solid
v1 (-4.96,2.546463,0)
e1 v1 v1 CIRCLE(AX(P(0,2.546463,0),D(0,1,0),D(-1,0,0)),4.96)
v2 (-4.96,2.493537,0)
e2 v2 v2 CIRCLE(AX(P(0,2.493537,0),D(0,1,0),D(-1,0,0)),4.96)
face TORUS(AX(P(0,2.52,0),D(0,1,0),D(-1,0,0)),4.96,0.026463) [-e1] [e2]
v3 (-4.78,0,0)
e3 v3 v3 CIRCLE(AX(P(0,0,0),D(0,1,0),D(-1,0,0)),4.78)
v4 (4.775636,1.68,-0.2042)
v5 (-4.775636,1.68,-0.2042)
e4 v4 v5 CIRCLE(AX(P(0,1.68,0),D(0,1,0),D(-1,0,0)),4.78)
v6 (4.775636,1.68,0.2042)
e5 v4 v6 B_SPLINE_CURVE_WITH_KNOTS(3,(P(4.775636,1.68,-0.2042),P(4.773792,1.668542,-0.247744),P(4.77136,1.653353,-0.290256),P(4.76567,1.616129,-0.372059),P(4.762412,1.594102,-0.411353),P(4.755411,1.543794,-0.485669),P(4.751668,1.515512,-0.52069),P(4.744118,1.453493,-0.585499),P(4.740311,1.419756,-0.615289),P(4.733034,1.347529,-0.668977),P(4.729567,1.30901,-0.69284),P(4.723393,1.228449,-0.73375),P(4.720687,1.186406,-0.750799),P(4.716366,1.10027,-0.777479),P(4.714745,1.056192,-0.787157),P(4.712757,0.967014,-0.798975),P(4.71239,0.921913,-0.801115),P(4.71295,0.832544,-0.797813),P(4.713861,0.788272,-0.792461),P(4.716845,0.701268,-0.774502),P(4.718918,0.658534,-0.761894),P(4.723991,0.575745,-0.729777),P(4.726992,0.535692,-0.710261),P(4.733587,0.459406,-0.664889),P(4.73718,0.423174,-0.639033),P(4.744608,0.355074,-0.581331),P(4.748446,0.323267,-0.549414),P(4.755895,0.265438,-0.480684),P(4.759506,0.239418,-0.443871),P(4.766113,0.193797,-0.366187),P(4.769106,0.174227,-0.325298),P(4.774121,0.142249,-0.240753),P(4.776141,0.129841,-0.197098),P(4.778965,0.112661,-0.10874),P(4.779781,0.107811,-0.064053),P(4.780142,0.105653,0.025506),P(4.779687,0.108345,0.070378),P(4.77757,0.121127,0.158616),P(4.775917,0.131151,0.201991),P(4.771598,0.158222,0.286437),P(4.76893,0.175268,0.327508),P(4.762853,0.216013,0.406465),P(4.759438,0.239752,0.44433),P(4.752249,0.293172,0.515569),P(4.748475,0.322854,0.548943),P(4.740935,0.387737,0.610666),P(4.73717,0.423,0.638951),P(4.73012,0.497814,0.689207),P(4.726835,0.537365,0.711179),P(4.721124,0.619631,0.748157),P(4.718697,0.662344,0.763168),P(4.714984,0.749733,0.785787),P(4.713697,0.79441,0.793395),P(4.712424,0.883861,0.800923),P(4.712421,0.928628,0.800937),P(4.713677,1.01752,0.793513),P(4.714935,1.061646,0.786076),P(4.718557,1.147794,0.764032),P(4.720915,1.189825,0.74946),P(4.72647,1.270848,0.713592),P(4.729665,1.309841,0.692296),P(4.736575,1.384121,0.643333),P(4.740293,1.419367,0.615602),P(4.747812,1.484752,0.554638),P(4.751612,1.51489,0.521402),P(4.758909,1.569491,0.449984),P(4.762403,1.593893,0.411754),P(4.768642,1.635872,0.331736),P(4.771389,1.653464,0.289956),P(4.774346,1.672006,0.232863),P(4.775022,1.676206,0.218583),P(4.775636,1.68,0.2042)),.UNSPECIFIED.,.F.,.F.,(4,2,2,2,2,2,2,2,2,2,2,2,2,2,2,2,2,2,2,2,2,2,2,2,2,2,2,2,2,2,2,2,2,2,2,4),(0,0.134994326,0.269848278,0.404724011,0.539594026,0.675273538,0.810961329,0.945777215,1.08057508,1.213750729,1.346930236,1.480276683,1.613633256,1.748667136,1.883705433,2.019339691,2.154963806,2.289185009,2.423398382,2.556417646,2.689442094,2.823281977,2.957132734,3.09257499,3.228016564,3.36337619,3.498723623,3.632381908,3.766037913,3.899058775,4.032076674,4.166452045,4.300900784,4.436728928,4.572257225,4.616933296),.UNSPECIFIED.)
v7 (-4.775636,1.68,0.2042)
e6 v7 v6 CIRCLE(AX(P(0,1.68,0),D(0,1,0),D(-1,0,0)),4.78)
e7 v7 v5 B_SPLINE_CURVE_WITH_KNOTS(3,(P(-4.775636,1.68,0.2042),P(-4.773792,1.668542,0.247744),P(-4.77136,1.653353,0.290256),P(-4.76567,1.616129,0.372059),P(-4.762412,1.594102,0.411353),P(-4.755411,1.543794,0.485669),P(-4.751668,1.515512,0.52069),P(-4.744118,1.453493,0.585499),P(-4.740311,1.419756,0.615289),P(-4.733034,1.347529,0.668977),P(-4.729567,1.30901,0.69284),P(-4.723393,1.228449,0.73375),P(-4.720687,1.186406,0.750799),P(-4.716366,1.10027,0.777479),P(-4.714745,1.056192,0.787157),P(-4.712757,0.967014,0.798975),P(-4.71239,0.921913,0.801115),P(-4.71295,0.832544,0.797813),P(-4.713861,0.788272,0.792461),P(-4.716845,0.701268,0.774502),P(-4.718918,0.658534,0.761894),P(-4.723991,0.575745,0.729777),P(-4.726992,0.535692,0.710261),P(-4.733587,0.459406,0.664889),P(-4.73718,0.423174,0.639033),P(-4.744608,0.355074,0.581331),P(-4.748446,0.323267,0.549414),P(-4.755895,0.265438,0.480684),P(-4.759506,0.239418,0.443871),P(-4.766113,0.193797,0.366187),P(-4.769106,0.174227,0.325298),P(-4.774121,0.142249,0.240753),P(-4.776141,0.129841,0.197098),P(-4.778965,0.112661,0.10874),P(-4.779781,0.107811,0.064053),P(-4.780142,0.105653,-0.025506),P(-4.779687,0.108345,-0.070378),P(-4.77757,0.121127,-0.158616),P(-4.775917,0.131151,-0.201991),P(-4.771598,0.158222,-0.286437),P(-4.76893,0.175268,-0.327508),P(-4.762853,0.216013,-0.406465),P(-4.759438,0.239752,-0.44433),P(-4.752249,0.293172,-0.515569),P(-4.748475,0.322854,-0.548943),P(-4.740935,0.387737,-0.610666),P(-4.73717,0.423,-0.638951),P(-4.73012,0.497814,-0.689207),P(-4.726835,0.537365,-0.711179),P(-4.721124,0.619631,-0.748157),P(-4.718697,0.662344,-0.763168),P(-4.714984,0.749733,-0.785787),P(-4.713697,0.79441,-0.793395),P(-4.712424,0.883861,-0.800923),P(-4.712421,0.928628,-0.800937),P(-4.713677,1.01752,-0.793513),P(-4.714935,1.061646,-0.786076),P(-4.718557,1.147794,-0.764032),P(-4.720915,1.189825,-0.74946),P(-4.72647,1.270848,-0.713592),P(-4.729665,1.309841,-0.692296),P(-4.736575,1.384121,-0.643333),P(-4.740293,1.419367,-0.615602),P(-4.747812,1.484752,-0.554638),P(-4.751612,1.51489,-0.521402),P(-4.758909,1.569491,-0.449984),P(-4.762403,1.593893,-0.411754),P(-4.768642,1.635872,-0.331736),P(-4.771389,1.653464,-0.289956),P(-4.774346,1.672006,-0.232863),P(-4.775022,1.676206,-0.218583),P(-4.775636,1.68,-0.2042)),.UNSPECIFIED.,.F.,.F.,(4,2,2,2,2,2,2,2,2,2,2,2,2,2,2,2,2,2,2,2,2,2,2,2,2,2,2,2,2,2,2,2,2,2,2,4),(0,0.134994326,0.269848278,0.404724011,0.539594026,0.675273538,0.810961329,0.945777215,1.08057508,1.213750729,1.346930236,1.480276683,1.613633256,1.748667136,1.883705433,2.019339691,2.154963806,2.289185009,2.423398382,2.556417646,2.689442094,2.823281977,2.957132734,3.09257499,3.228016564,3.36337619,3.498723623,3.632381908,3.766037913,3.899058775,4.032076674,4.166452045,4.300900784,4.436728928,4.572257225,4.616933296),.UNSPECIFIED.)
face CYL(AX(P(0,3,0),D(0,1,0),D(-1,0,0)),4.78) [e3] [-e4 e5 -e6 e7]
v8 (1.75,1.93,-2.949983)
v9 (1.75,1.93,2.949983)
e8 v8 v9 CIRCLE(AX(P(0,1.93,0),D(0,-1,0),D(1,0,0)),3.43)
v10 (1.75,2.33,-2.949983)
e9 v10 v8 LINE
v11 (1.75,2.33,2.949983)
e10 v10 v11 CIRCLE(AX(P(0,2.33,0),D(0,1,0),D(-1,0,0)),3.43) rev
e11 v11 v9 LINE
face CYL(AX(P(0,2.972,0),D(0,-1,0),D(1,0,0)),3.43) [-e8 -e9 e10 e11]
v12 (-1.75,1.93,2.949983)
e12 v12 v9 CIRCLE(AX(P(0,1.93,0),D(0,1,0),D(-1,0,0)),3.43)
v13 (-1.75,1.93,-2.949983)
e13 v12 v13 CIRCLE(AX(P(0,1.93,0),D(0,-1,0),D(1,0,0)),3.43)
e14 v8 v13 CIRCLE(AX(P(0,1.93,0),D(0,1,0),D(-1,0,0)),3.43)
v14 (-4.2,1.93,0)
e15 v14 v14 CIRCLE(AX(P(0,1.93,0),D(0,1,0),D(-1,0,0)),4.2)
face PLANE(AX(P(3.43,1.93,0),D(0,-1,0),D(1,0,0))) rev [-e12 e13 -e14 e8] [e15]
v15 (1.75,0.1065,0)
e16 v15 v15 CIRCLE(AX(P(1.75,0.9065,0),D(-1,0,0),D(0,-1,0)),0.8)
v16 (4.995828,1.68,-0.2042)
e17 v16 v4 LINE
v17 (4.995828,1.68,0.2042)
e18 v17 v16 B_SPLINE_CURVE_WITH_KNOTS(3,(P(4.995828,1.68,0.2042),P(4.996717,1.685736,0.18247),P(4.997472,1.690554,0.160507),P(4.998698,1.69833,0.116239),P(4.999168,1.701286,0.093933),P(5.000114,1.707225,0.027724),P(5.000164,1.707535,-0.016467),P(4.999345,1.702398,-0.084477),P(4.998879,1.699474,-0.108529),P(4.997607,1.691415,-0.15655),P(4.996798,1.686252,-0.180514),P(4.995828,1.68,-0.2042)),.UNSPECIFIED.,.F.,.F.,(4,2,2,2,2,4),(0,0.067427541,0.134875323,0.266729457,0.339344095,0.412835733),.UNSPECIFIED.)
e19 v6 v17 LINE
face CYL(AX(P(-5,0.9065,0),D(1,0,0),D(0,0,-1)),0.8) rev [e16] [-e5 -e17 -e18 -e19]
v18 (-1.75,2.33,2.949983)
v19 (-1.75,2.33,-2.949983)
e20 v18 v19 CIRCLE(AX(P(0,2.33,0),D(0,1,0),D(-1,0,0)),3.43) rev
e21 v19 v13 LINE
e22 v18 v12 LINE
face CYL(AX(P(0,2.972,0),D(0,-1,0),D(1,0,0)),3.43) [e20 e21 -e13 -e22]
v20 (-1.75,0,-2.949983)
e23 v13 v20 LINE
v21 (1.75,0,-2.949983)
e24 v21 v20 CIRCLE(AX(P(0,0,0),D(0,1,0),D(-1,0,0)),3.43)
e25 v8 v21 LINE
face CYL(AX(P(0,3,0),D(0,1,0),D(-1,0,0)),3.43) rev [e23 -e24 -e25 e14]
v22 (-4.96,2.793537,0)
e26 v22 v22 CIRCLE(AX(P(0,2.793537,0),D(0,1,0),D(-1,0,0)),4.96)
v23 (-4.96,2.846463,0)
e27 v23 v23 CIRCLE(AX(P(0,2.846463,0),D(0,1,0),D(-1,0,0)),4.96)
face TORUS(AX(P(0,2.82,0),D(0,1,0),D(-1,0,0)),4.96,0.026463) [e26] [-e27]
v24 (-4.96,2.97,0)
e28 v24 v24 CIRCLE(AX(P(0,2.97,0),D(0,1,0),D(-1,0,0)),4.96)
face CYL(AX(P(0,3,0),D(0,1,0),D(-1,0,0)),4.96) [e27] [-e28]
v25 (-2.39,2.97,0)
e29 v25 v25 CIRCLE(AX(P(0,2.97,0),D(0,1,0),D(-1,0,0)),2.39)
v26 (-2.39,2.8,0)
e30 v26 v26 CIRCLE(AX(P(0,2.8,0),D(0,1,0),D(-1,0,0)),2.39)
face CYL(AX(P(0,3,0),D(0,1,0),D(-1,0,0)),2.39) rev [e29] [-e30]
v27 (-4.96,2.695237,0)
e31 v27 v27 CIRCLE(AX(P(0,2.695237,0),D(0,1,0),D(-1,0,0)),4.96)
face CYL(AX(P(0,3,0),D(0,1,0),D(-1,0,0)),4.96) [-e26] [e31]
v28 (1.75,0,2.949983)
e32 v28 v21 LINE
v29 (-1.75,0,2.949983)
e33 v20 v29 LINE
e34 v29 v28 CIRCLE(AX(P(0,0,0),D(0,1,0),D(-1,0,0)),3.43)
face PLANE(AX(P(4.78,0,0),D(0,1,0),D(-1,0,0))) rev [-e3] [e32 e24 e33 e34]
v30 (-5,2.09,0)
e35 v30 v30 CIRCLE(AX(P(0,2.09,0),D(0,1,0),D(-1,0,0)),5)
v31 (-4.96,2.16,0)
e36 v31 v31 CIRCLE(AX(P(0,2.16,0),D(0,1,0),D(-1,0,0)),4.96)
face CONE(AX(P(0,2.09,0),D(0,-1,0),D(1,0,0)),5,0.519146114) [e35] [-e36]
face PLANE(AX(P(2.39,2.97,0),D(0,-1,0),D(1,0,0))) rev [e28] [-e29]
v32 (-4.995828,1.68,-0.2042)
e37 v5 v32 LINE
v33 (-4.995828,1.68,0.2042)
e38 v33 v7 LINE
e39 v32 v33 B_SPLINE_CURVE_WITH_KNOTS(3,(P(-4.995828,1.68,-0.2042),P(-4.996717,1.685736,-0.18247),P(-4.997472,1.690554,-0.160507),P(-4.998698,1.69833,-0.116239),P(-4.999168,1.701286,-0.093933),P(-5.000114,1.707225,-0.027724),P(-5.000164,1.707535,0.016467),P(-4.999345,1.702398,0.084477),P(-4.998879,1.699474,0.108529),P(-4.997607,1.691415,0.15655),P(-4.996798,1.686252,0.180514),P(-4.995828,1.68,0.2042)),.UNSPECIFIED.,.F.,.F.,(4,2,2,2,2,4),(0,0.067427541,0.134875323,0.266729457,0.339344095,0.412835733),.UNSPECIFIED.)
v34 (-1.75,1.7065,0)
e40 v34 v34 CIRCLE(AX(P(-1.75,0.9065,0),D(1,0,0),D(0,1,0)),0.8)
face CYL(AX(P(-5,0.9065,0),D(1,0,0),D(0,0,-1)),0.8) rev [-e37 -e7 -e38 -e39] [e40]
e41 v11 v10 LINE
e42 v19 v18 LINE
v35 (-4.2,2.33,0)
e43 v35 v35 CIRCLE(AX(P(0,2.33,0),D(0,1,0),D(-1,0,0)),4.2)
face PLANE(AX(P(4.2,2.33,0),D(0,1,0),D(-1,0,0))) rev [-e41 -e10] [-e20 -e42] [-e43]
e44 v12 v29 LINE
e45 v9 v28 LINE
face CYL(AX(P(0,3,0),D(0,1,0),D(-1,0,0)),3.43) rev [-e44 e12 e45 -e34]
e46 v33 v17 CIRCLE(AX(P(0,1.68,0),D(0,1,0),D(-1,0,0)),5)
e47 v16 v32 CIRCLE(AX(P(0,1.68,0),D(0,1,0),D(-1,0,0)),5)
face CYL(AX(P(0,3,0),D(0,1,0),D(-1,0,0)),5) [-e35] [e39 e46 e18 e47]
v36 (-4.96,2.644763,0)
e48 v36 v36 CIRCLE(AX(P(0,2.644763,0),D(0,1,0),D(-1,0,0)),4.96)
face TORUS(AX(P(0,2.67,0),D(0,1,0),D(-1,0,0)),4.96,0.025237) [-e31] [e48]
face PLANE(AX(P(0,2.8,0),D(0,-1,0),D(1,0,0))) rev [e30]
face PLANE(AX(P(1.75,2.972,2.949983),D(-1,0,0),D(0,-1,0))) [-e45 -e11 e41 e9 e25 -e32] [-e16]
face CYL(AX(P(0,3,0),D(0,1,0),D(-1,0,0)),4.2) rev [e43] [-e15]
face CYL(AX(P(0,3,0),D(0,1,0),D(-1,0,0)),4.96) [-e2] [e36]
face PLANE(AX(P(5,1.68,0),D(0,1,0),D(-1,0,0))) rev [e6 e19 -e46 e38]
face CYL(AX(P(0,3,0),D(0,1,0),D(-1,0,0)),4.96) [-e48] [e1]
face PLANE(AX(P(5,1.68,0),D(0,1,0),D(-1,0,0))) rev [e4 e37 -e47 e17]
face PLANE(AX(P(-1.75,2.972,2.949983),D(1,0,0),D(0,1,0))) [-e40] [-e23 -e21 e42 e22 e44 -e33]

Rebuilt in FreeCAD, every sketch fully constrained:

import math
import FreeCAD as App
import Part
import Sketcher

V = App.Vector

doc = App.newDocument("Part")
body = doc.addObject("PartDesign::Body", "Body")

# Sketch on XY plane
sketch1 = body.newObject("Sketcher::SketchObject", "Sketch")
sketch1.AttachmentSupport = (doc.getObject("XY_Plane"), [""])
sketch1.MapMode = "FlatFace"
sketch1.addGeometry(Part.LineSegment(V(3.43, 0, 0), V(4.78, 0, 0)), False)
sketch1.addGeometry(Part.LineSegment(V(4.78, 0, 0), V(4.78, 1.68, 0)), False)
sketch1.addGeometry(Part.LineSegment(V(4.78, 1.68, 0), V(5, 1.68, 0)), False)
sketch1.addGeometry(Part.LineSegment(V(5, 1.68, 0), V(5, 2.09, 0)), False)
sketch1.addGeometry(Part.LineSegment(V(5, 2.09, 0), V(4.96, 2.16, 0)), False)
sketch1.addGeometry(Part.LineSegment(V(4.96, 2.16, 0), V(4.96, 2.494, 0)), False)
sketch1.addGeometry(Part.ArcOfCircle(Part.Circle(V(4.96, 2.52, 0), V(0, 0, 1), 0.026), math.radians(-90), math.radians(90)), False)
sketch1.addGeometry(Part.LineSegment(V(4.96, 2.546, 0), V(4.96, 2.645, 0)), False)
sketch1.addGeometry(Part.ArcOfCircle(Part.Circle(V(4.96, 2.67, 0), V(0, 0, 1), 0.025), math.radians(-90), math.radians(90)), False)
sketch1.addGeometry(Part.LineSegment(V(4.96, 2.695, 0), V(4.96, 2.794, 0)), False)
sketch1.addGeometry(Part.ArcOfCircle(Part.Circle(V(4.96, 2.82, 0), V(0, 0, 1), 0.026), math.radians(-90), math.radians(90)), False)
sketch1.addGeometry(Part.LineSegment(V(4.96, 2.846, 0), V(4.96, 2.97, 0)), False)
sketch1.addGeometry(Part.LineSegment(V(4.96, 2.97, 0), V(2.39, 2.97, 0)), False)
sketch1.addGeometry(Part.LineSegment(V(2.39, 2.97, 0), V(2.39, 2.8, 0)), False)
sketch1.addGeometry(Part.LineSegment(V(2.39, 2.8, 0), V(0, 2.8, 0)), False)
sketch1.addGeometry(Part.LineSegment(V(0, 2.8, 0), V(0, 2.33, 0)), False)
sketch1.addGeometry(Part.LineSegment(V(0, 2.33, 0), V(4.2, 2.33, 0)), False)
sketch1.addGeometry(Part.LineSegment(V(4.2, 2.33, 0), V(4.2, 1.93, 0)), False)
sketch1.addGeometry(Part.LineSegment(V(4.2, 1.93, 0), V(3.43, 1.93, 0)), False)
sketch1.addGeometry(Part.LineSegment(V(3.43, 1.93, 0), V(3.43, 0, 0)), False)
sketch1.addConstraint(Sketcher.Constraint("Coincident", 0, 2, 1, 1))
sketch1.addConstraint(Sketcher.Constraint("Coincident", 1, 2, 2, 1))
sketch1.addConstraint(Sketcher.Constraint("Coincident", 2, 2, 3, 1))
sketch1.addConstraint(Sketcher.Constraint("Coincident", 3, 2, 4, 1))
sketch1.addConstraint(Sketcher.Constraint("Coincident", 4, 2, 5, 1))
sketch1.addConstraint(Sketcher.Constraint("Coincident", 5, 2, 6, 1))
sketch1.addConstraint(Sketcher.Constraint("Coincident", 6, 2, 7, 1))
sketch1.addConstraint(Sketcher.Constraint("Coincident", 7, 2, 8, 1))
sketch1.addConstraint(Sketcher.Constraint("Coincident", 8, 2, 9, 1))
sketch1.addConstraint(Sketcher.Constraint("Coincident", 9, 2, 10, 1))
sketch1.addConstraint(Sketcher.Constraint("Coincident", 10, 2, 11, 1))
sketch1.addConstraint(Sketcher.Constraint("Coincident", 11, 2, 12, 1))
sketch1.addConstraint(Sketcher.Constraint("Coincident", 12, 2, 13, 1))
sketch1.addConstraint(Sketcher.Constraint("Coincident", 13, 2, 14, 1))
sketch1.addConstraint(Sketcher.Constraint("Coincident", 14, 2, 15, 1))
sketch1.addConstraint(Sketcher.Constraint("Coincident", 15, 2, 16, 1))
sketch1.addConstraint(Sketcher.Constraint("Coincident", 16, 2, 17, 1))
sketch1.addConstraint(Sketcher.Constraint("Coincident", 17, 2, 18, 1))
sketch1.addConstraint(Sketcher.Constraint("Coincident", 18, 2, 19, 1))
sketch1.addConstraint(Sketcher.Constraint("Coincident", 19, 2, 0, 1))
sketch1.addConstraint(Sketcher.Constraint("Horizontal", 0))
sketch1.addConstraint(Sketcher.Constraint("Vertical", 1))
sketch1.addConstraint(Sketcher.Constraint("Horizontal", 2))
sketch1.addConstraint(Sketcher.Constraint("Vertical", 3))
sketch1.addConstraint(Sketcher.Constraint("Vertical", 5))
sketch1.addConstraint(Sketcher.Constraint("Vertical", 7))
sketch1.addConstraint(Sketcher.Constraint("Vertical", 9))
sketch1.addConstraint(Sketcher.Constraint("Vertical", 11))
sketch1.addConstraint(Sketcher.Constraint("Horizontal", 12))
sketch1.addConstraint(Sketcher.Constraint("Vertical", 13))
sketch1.addConstraint(Sketcher.Constraint("Horizontal", 14))
sketch1.addConstraint(Sketcher.Constraint("Vertical", 15))
sketch1.addConstraint(Sketcher.Constraint("Horizontal", 16))
sketch1.addConstraint(Sketcher.Constraint("Vertical", 17))
sketch1.addConstraint(Sketcher.Constraint("Horizontal", 18))
sketch1.addConstraint(Sketcher.Constraint("Vertical", 19))
sketch1.addConstraint(Sketcher.Constraint("Equal", 6, 10))
sketch1.addConstraint(Sketcher.Constraint("PointOnObject", 0, 2, -1))
sketch1.addConstraint(Sketcher.Constraint("PointOnObject", 14, 2, -2))
sketch1.addConstraint(Sketcher.Constraint("Vertical", 6, 3, 8, 3))
sketch1.addConstraint(Sketcher.Constraint("Vertical", 8, 3, 10, 3))
sketch1.addConstraint(Sketcher.Constraint("Vertical", 10, 3, 4, 2))
sketch1.addConstraint(Sketcher.Constraint("Vertical", 5, 2, 6, 2))
sketch1.addConstraint(Sketcher.Constraint("Vertical", 7, 2, 8, 2))
sketch1.addConstraint(Sketcher.Constraint("Vertical", 9, 2, 10, 2))
sketch1.addConstraint(Sketcher.Constraint("Equal", 7, 9))
sketch1.addConstraint(Sketcher.Constraint("DistanceX", 16, 1, 16, 2, 4.2))
sketch1.addConstraint(Sketcher.Constraint("DistanceY", 17, 2, 17, 1, 0.4))
sketch1.addConstraint(Sketcher.Constraint("DistanceX", -1, 1, 2, 2, 5.0))
sketch1.addConstraint(Sketcher.Constraint("DistanceX", 0, 1, 0, 2, 1.35))
sketch1.addConstraint(Sketcher.Constraint("DistanceX", 2, 1, 2, 2, 0.22))
sketch1.addConstraint(Sketcher.Constraint("DistanceX", 12, 2, 12, 1, 2.57))
sketch1.addConstraint(Sketcher.Constraint("DistanceX", 14, 2, 14, 1, 2.39))
sketch1.addConstraint(Sketcher.Constraint("DistanceY", 1, 1, 1, 2, 1.68))
sketch1.addConstraint(Sketcher.Constraint("DistanceY", 3, 1, 3, 2, 0.41))
sketch1.addConstraint(Sketcher.Constraint("DistanceY", 13, 2, 13, 1, 0.17))
sketch1.addConstraint(Sketcher.Constraint("DistanceY", 15, 2, 15, 1, 0.47))
sketch1.addConstraint(Sketcher.Constraint("DistanceY", 19, 2, 19, 1, 1.93))
sketch1.addConstraint(Sketcher.Constraint("DistanceY", 6, 3, 10, 3, 0.3))
sketch1.addConstraint(Sketcher.Constraint("DistanceY", 8, 3, 11, 2, 0.3))
sketch1.addConstraint(Sketcher.Constraint("DistanceY", -1, 1, 4, 2, 2.16))
sketch1.addConstraint(Sketcher.Constraint("DistanceY", 7, 1, 7, 2, 0.098301))
sketch1.addConstraint(Sketcher.Constraint("Radius", 6, 0.026463))
revolution = body.newObject("PartDesign::Revolution", "Revolution")
revolution.Profile = sketch1
revolution.ReferenceAxis = (sketch1, ["V_Axis"])
revolution.Angle = 360

# Sketch on XZ plane
sketch2 = body.newObject("Sketcher::SketchObject", "Sketch001")
sketch2.AttachmentSupport = (doc.getObject("XZ_Plane"), [""])
sketch2.MapMode = "FlatFace"
sketch2.addGeometry(Part.LineSegment(V(-1.8, -2.9, 0), V(-1.8, 2.9, 0)), False)
sketch2.addGeometry(Part.ArcOfCircle(Part.Circle(V(0, 0, 0), V(0, 0, 1), 3.4), math.radians(121), math.radians(239)), False)
sketch2.addConstraint(Sketcher.Constraint("Coincident", 0, 1, 1, 2))
sketch2.addConstraint(Sketcher.Constraint("Coincident", 1, 1, 0, 2))
sketch2.addConstraint(Sketcher.Constraint("Vertical", 0))
sketch2.addConstraint(Sketcher.Constraint("Coincident", 1, 3, -1, 1))
sketch2.addConstraint(Sketcher.Constraint("Radius", 1, 3.43))
sketch2.addConstraint(Sketcher.Constraint("DistanceX", 0, 1, -1, 1, 1.75))
pad1 = body.newObject("PartDesign::Pad", "Pad")
pad1.Profile = sketch2
pad1.Type = "UpToFirst"
pad1.Reversed = True

# Sketch on XZ plane
sketch3 = body.newObject("Sketcher::SketchObject", "Sketch002")
sketch3.AttachmentSupport = (doc.getObject("XZ_Plane"), [""])
sketch3.MapMode = "FlatFace"
sketch3.addGeometry(Part.LineSegment(V(1.8, 2.9, 0), V(1.8, -2.9, 0)), False)
sketch3.addGeometry(Part.ArcOfCircle(Part.Circle(V(0, 0, 0), V(0, 0, 1), 3.4), math.radians(-59), math.radians(59)), False)
sketch3.addConstraint(Sketcher.Constraint("Coincident", 0, 1, 1, 2))
sketch3.addConstraint(Sketcher.Constraint("Coincident", 1, 1, 0, 2))
sketch3.addConstraint(Sketcher.Constraint("Vertical", 0))
sketch3.addConstraint(Sketcher.Constraint("Coincident", 1, 3, -1, 1))
sketch3.addConstraint(Sketcher.Constraint("Radius", 1, 3.43))
sketch3.addConstraint(Sketcher.Constraint("DistanceX", -1, 1, 0, 1, 1.75))
pad2 = body.newObject("PartDesign::Pad", "Pad001")
pad2.Profile = sketch3
pad2.Type = "UpToFirst"
pad2.Reversed = True

# Sketch on YZ plane
sketch4 = body.newObject("Sketcher::SketchObject", "Sketch003")
sketch4.AttachmentSupport = (doc.getObject("YZ_Plane"), [""])
sketch4.MapMode = "FlatFace"
sketch4.addGeometry(Part.Circle(V(0.9, 0, 0), V(0, 0, 1), 0.8), False)
sketch4.addConstraint(Sketcher.Constraint("PointOnObject", 0, 3, -1))
sketch4.addConstraint(Sketcher.Constraint("Diameter", 0, 1.6))
sketch4.addConstraint(Sketcher.Constraint("DistanceX", -1, 1, 0, 3, 0.9065))
pocket1 = body.newObject("PartDesign::Pocket", "Pocket")
pocket1.Profile = sketch4
pocket1.Type = "ThroughAll"
pocket1.Midplane = True

doc.recompute()
